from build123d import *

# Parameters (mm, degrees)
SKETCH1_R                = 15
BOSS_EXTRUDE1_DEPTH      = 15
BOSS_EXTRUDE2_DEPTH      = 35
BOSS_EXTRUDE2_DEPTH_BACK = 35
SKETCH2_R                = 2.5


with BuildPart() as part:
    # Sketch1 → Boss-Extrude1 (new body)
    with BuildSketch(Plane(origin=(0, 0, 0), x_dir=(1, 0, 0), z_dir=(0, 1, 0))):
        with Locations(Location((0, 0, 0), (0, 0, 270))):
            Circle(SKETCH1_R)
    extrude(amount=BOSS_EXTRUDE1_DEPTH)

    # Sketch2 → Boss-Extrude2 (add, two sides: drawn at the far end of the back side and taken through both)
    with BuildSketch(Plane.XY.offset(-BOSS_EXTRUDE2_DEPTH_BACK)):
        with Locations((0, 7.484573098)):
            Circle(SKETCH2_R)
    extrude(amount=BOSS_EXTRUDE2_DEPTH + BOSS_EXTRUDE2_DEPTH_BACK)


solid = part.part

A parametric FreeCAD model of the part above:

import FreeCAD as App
import Part
import Sketcher
from FreeCAD import Vector
Q = App.Units.Quantity

doc = App.newDocument("Part")
body = doc.addObject("PartDesign::Body", "Body")

# Sketch on XZ plane
sketch1 = body.newObject("Sketcher::SketchObject", "Sketch")
sketch1.AttachmentSupport = (doc.getObject("XZ_Plane"), [""])
sketch1.MapMode = "FlatFace"
sketch1.addGeometry(Part.Circle(Vector(0, 0, 0), Vector(0, 0, 1), 15), False)
sketch1.addConstraint([
    Sketcher.Constraint("Coincident", 0, 3, -1, 1),
    Sketcher.Constraint("Diameter", 0, Q("30 mm")),
])
pad1 = body.newObject("PartDesign::Pad", "Pad")
pad1.Profile = sketch1
pad1.Length = 15
pad1.Reversed = True

# Sketch on XY plane
sketch2 = body.newObject("Sketcher::SketchObject", "Sketch001")
sketch2.AttachmentSupport = (doc.getObject("XY_Plane"), [""])
sketch2.MapMode = "FlatFace"
sketch2.addGeometry(Part.Circle(Vector(0, 7.5, 0), Vector(0, 0, 1), 2.5), False)
sketch2.addConstraint([
    Sketcher.Constraint("PointOnObject", 0, 3, -2),
    Sketcher.Constraint("Diameter", 0, Q("5 mm")),
    Sketcher.Constraint("DistanceY", -1, 1, 0, 3, Q("7.484573 mm")),
])
pad2 = body.newObject("PartDesign::Pad", "Pad001")
pad2.Profile = sketch2
pad2.Type = "TwoLengths"
pad2.Length = 35
pad2.Length2 = 35

doc.recompute()
